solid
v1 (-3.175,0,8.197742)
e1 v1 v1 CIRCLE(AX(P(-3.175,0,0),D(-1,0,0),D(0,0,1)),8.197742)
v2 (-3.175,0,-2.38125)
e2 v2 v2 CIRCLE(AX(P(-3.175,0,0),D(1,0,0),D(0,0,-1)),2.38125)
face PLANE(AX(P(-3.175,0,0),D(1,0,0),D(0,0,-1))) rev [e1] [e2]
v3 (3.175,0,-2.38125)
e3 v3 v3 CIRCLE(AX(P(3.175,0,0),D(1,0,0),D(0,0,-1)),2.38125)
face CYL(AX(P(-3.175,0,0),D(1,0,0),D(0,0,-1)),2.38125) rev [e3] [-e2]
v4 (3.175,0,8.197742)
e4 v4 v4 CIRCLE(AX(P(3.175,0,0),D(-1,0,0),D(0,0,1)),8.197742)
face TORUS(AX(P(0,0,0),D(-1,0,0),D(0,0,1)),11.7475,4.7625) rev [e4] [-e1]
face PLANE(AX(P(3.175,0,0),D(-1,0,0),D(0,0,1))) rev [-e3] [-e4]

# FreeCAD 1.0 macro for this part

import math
import FreeCAD as App
import Part
import Sketcher
from FreeCAD import Vector
Q = App.Units.Quantity

doc = App.newDocument("Part")
body = doc.addObject("PartDesign::Body", "Body")

# Sketch on XY plane
sketch1 = doc.addObject("Sketcher::SketchObject", "Sketch")
body.addObject(sketch1)
sketch1.AttachmentSupport = (doc.XY_Plane, [""])
sketch1.MapMode = "FlatFace"
sketch1.addGeometry(Part.LineSegment(Vector(-3.175, 0, 0), Vector(3.175, 0, 0)), False)
sketch1.addGeometry(Part.LineSegment(Vector(3.175, 0, 0), Vector(3.175, 8.197742, 0)), False)
sketch1.addGeometry(Part.ArcOfCircle(Part.Circle(Vector(0, 11.7475, 0), Vector(0, 0, 1), 4.7625), math.radians(-131.810315), math.radians(-48.189685)), False)
sketch1.addGeometry(Part.LineSegment(Vector(-3.175, 8.197742, 0), Vector(-3.175, 0, 0)), False)
sketch1.addConstraint(Sketcher.Constraint("Coincident", 0, 2, 1, 1))
sketch1.addConstraint(Sketcher.Constraint("Coincident", 1, 2, 2, 2))
sketch1.addConstraint(Sketcher.Constraint("Coincident", 2, 1, 3, 1))
sketch1.addConstraint(Sketcher.Constraint("Coincident", 3, 2, 0, 1))
sketch1.addConstraint(Sketcher.Constraint("Horizontal", 0))
sketch1.addConstraint(Sketcher.Constraint("Vertical", 1))
sketch1.addConstraint(Sketcher.Constraint("Vertical", 3))
sketch1.addConstraint(Sketcher.Constraint("Symmetric", 0, 2, 3, 2, -1, 1))
sketch1.addConstraint(Sketcher.Constraint("PointOnObject", 2, 3, -2))
sketch1.addConstraint(Sketcher.Constraint("Radius", 2, Q("0.1875 in")))
sketch1.addConstraint(Sketcher.Constraint("DistanceX", 0, 1, 0, 2, Q("0.25 in")))
sketch1.addConstraint(Sketcher.Constraint("DistanceY", -1, 1, 2, 3, Q("0.4625 in")))
revolution = doc.addObject("PartDesign::Revolution", "Revolution")
body.addObject(revolution)
revolution.Profile = sketch1
revolution.ReferenceAxis = (sketch1, ["H_Axis"])
revolution.Angle = 360

# Sketch on YZ plane
sketch2 = doc.addObject("Sketcher::SketchObject", "Sketch001")
body.addObject(sketch2)
sketch2.AttachmentSupport = (doc.YZ_Plane, [""])
sketch2.MapMode = "FlatFace"
sketch2.AttachmentOffset = App.Placement(Vector(0, 0, 0.125 * 25.4), App.Rotation())
sketch2.addGeometry(Part.Circle(Vector(0, 0, 0), Vector(0, 0, 1), 2.38125), False)
sketch2.addConstraint(Sketcher.Constraint("Coincident", 0, 3, -1, 1))
sketch2.addConstraint(Sketcher.Constraint("Diameter", 0, Q("0.1875 in")))
pocket1 = doc.addObject("PartDesign::Pocket", "Pocket")
body.addObject(pocket1)
pocket1.Profile = sketch2
pocket1.Type = "ThroughAll"

doc.recompute()
